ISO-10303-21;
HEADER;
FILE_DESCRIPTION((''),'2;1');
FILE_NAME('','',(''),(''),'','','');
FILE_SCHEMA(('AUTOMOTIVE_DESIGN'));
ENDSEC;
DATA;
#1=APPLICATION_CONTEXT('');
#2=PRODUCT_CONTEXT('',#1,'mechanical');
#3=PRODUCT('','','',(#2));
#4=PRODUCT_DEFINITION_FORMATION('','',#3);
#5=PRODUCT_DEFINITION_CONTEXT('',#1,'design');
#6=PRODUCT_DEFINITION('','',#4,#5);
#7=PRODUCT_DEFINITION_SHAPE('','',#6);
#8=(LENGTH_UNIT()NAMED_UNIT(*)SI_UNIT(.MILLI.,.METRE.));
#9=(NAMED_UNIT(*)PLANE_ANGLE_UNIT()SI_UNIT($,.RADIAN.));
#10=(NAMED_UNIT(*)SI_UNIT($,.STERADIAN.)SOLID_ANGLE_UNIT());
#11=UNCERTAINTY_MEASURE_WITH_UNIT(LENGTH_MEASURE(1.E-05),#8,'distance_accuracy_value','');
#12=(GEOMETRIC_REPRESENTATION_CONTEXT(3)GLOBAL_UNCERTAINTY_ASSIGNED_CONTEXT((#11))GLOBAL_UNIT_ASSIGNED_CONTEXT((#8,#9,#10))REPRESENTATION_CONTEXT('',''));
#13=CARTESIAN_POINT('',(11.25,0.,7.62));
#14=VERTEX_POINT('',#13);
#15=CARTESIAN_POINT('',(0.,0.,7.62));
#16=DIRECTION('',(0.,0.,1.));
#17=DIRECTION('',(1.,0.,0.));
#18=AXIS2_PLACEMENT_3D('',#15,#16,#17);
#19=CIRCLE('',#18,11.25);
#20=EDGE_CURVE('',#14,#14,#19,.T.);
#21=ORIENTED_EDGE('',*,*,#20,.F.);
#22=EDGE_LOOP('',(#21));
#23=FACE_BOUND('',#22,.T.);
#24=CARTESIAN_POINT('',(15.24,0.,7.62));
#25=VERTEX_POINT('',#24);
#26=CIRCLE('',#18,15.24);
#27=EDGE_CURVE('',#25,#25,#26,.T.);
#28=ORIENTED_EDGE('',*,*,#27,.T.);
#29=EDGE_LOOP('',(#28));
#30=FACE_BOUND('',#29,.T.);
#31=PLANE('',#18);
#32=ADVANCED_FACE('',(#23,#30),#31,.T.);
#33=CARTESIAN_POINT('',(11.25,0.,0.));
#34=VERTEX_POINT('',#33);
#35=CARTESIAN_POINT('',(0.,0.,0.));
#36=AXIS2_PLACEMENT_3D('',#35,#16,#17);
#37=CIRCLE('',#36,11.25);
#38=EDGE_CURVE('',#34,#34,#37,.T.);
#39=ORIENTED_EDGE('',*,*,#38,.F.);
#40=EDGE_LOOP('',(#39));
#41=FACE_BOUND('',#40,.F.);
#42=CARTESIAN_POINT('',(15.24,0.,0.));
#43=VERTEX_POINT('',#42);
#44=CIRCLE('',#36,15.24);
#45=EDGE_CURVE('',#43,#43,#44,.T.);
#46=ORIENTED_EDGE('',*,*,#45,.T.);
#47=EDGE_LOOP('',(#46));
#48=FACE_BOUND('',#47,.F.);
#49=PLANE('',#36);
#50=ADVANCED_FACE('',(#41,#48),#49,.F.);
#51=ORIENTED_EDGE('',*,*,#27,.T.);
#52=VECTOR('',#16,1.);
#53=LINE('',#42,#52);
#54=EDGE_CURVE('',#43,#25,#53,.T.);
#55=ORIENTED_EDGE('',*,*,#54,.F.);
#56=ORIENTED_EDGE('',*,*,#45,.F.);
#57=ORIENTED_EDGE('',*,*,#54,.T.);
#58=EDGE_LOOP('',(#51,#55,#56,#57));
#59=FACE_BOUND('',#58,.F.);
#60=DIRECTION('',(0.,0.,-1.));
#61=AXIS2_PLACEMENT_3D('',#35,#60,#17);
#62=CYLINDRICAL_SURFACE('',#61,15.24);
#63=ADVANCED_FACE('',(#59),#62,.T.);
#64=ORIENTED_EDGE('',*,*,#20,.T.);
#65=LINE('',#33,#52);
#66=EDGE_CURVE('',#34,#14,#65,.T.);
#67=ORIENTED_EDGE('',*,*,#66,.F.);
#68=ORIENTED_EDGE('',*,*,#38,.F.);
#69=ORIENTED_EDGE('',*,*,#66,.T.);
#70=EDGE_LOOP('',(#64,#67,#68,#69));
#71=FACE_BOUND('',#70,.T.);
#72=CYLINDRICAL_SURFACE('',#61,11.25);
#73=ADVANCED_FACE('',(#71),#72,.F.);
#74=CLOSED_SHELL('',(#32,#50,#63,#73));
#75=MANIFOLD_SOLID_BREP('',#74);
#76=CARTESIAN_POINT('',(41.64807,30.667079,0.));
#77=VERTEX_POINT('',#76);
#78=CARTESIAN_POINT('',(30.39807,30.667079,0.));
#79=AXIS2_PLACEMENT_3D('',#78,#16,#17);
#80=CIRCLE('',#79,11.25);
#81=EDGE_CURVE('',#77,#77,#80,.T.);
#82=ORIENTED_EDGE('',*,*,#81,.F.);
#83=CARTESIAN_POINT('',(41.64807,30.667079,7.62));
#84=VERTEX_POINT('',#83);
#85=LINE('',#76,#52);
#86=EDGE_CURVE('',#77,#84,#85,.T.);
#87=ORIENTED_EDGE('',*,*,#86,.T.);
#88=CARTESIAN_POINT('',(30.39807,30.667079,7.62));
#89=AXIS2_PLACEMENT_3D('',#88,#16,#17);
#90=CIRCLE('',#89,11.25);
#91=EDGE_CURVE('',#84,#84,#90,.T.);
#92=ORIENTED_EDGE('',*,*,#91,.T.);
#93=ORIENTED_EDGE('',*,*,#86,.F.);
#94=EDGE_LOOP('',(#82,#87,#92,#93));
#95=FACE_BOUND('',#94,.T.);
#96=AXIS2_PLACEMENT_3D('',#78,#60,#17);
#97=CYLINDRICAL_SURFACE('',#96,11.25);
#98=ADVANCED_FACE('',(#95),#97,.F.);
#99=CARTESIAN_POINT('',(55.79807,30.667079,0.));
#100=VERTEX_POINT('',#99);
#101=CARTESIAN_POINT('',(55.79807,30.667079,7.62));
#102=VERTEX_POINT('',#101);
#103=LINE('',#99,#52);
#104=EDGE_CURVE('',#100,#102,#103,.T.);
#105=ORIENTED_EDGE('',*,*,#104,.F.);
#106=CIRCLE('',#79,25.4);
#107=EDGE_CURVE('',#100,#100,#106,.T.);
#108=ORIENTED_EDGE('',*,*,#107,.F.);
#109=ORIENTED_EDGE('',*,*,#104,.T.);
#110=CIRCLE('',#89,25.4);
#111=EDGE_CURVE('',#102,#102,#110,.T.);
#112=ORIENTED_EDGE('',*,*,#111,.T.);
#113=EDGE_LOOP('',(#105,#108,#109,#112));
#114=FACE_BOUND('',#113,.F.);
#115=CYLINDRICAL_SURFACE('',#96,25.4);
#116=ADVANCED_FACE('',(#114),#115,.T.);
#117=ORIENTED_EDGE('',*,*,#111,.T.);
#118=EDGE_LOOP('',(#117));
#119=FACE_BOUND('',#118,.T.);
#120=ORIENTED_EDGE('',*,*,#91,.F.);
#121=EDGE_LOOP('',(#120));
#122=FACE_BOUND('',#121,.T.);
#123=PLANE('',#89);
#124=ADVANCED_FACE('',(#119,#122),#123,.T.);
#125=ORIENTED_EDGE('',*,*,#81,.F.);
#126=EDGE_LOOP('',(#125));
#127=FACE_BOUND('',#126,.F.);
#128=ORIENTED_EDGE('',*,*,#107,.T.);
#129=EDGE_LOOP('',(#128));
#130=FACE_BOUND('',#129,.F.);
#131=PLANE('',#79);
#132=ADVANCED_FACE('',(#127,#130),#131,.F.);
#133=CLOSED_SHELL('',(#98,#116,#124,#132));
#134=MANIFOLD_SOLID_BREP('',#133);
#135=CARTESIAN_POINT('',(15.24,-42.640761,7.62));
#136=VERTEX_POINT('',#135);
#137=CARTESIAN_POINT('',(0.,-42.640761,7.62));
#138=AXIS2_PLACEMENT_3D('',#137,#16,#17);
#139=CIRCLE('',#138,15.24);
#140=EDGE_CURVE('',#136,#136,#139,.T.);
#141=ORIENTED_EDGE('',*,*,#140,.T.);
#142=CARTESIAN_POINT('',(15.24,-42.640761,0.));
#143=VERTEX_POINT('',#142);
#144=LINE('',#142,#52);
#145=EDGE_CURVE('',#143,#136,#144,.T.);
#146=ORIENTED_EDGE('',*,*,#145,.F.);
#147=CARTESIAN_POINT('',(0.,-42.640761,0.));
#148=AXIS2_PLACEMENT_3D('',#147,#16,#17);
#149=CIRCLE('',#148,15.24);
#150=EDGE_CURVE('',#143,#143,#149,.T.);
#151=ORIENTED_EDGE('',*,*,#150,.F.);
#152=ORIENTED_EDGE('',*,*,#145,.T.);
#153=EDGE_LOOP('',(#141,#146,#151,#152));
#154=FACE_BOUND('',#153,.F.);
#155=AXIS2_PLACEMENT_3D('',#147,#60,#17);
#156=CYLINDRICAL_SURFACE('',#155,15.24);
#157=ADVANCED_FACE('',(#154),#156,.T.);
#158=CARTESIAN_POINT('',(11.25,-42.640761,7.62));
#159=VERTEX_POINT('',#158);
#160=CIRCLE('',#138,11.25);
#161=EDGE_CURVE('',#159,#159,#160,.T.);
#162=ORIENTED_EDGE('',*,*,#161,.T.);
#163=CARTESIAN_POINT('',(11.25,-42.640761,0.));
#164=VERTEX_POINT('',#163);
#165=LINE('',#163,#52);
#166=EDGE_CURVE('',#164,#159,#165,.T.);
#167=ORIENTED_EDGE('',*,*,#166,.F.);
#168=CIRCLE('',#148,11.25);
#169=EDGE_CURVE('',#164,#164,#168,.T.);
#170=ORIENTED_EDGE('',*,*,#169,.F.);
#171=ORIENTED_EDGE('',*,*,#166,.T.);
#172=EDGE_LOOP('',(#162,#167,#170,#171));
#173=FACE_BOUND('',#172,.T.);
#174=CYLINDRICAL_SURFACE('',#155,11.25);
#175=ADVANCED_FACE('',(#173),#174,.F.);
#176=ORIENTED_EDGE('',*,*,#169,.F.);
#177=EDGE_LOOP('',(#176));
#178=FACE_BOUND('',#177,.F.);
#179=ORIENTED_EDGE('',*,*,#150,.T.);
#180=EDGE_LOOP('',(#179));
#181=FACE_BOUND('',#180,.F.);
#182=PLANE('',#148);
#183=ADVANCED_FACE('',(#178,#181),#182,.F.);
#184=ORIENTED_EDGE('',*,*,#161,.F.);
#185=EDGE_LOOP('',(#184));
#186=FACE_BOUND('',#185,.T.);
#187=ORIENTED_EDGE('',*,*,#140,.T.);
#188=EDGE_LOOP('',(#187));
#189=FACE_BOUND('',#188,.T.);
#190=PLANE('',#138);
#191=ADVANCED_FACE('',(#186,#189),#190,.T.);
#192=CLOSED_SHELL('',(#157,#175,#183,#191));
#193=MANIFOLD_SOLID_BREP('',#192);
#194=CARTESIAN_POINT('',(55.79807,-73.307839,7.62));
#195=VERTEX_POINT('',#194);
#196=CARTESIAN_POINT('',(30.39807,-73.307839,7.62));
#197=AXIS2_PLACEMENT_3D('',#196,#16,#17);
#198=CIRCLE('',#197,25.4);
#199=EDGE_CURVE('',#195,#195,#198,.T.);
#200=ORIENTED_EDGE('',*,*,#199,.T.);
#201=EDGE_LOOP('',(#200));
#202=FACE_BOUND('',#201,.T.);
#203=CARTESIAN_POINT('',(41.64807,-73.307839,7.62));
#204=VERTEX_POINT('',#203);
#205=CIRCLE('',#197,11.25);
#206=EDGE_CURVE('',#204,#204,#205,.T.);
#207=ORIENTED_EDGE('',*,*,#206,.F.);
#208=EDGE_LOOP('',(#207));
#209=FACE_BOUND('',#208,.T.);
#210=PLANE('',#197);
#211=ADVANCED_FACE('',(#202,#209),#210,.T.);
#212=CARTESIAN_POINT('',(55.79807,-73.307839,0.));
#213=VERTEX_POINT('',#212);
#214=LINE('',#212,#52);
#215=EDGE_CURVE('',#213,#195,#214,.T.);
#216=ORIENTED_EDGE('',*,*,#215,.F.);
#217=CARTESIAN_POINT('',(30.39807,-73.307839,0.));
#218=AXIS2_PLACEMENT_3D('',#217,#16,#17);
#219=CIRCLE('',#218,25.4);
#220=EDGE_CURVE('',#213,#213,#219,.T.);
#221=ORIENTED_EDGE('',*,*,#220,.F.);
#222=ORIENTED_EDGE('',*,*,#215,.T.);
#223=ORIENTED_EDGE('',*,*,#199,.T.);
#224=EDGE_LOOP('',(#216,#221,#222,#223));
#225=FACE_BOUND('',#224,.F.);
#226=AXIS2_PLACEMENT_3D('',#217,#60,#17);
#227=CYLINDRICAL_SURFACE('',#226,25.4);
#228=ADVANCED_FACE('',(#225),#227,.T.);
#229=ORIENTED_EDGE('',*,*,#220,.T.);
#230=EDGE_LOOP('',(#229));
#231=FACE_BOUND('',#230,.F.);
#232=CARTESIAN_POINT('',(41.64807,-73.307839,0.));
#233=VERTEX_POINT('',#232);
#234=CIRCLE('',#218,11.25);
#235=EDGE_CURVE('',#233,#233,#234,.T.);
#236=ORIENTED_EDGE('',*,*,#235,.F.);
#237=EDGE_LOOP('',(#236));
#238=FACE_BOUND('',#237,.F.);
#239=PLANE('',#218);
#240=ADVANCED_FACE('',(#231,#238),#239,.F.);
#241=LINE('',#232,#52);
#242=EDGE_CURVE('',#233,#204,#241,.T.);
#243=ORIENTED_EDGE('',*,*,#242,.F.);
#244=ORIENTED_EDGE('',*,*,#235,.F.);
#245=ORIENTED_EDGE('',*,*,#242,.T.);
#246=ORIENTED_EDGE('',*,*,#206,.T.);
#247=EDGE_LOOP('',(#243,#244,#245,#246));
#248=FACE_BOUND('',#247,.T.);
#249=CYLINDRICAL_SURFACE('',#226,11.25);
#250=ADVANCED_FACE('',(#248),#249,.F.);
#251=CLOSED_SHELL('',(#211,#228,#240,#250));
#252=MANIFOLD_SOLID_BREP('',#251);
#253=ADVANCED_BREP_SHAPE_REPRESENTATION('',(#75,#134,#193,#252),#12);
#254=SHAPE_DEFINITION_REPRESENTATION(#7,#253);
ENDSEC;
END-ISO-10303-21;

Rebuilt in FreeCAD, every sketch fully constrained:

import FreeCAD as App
import Part
import Sketcher
from FreeCAD import Vector
Q = App.Units.Quantity

doc = App.newDocument("Part")
body = doc.addObject("PartDesign::Body", "Body")
body.AllowCompound = True

sketch1 = body.newObject("Sketcher::SketchObject", "Sketch")
sketch1.AttachmentSupport = (doc.getObject("XY_Plane"), [""])
sketch1.MapMode = "FlatFace"
sketch1.addGeometry(Part.Circle(Vector(0, 0, 0), Vector(0, 0, 1), 15), False)
sketch1.addGeometry(Part.Circle(Vector(0, 0, 0), Vector(0, 0, 1), 11), False)
sketch1.addGeometry(Part.Circle(Vector(30, 31, 0), Vector(0, 0, 1), 25), False)
sketch1.addGeometry(Part.Circle(Vector(30, 31, 0), Vector(0, 0, 1), 11), False)
sketch1.addGeometry(Part.Circle(Vector(0, -43, 0), Vector(0, 0, 1), 15), False)
sketch1.addGeometry(Part.Circle(Vector(0, -43, 0), Vector(0, 0, 1), 11), False)
sketch1.addGeometry(Part.Circle(Vector(30, -73, 0), Vector(0, 0, 1), 25), False)
sketch1.addGeometry(Part.Circle(Vector(30, -73, 0), Vector(0, 0, 1), 11), False)
sketch1.addConstraint(Sketcher.Constraint("Coincident", 0, 3, -1, 1))
sketch1.addConstraint(Sketcher.Constraint("Coincident", 1, 3, -1, 1))
sketch1.addConstraint(Sketcher.Constraint("Coincident", 3, 3, 2, 3))
sketch1.addConstraint(Sketcher.Constraint("Coincident", 5, 3, 4, 3))
sketch1.addConstraint(Sketcher.Constraint("Coincident", 7, 3, 6, 3))
sketch1.addConstraint(Sketcher.Constraint("Equal", 1, 3))
sketch1.addConstraint(Sketcher.Constraint("Equal", 0, 4))
sketch1.addConstraint(Sketcher.Constraint("Equal", 3, 5))
sketch1.addConstraint(Sketcher.Constraint("Equal", 2, 6))
sketch1.addConstraint(Sketcher.Constraint("Equal", 5, 7))
sketch1.addConstraint(Sketcher.Constraint("PointOnObject", 4, 3, -2))
sketch1.addConstraint(Sketcher.Constraint("Vertical", 3, 3, 6, 3))
sketch1.addConstraint(Sketcher.Constraint("Diameter", 2, Q("2 in")))
sketch1.addConstraint(Sketcher.Constraint("Diameter", 0, Q("1.2 in")))
sketch1.addConstraint(Sketcher.Constraint("Diameter", 1, 22.5))
sketch1.addConstraint(Sketcher.Constraint("DistanceX", -1, 1, 2, 3, 30.39807))
sketch1.addConstraint(Sketcher.Constraint("DistanceY", -1, 1, 2, 3, 30.667079))
sketch1.addConstraint(Sketcher.Constraint("DistanceY", 4, 3, -1, 1, 42.640761))
sketch1.addConstraint(Sketcher.Constraint("DistanceY", 6, 3, -1, 1, 73.307839))
pad1 = body.newObject("PartDesign::Pad", "Pad")
pad1.Profile = sketch1
pad1.Length = Q("0.3 in")

doc.recompute()
